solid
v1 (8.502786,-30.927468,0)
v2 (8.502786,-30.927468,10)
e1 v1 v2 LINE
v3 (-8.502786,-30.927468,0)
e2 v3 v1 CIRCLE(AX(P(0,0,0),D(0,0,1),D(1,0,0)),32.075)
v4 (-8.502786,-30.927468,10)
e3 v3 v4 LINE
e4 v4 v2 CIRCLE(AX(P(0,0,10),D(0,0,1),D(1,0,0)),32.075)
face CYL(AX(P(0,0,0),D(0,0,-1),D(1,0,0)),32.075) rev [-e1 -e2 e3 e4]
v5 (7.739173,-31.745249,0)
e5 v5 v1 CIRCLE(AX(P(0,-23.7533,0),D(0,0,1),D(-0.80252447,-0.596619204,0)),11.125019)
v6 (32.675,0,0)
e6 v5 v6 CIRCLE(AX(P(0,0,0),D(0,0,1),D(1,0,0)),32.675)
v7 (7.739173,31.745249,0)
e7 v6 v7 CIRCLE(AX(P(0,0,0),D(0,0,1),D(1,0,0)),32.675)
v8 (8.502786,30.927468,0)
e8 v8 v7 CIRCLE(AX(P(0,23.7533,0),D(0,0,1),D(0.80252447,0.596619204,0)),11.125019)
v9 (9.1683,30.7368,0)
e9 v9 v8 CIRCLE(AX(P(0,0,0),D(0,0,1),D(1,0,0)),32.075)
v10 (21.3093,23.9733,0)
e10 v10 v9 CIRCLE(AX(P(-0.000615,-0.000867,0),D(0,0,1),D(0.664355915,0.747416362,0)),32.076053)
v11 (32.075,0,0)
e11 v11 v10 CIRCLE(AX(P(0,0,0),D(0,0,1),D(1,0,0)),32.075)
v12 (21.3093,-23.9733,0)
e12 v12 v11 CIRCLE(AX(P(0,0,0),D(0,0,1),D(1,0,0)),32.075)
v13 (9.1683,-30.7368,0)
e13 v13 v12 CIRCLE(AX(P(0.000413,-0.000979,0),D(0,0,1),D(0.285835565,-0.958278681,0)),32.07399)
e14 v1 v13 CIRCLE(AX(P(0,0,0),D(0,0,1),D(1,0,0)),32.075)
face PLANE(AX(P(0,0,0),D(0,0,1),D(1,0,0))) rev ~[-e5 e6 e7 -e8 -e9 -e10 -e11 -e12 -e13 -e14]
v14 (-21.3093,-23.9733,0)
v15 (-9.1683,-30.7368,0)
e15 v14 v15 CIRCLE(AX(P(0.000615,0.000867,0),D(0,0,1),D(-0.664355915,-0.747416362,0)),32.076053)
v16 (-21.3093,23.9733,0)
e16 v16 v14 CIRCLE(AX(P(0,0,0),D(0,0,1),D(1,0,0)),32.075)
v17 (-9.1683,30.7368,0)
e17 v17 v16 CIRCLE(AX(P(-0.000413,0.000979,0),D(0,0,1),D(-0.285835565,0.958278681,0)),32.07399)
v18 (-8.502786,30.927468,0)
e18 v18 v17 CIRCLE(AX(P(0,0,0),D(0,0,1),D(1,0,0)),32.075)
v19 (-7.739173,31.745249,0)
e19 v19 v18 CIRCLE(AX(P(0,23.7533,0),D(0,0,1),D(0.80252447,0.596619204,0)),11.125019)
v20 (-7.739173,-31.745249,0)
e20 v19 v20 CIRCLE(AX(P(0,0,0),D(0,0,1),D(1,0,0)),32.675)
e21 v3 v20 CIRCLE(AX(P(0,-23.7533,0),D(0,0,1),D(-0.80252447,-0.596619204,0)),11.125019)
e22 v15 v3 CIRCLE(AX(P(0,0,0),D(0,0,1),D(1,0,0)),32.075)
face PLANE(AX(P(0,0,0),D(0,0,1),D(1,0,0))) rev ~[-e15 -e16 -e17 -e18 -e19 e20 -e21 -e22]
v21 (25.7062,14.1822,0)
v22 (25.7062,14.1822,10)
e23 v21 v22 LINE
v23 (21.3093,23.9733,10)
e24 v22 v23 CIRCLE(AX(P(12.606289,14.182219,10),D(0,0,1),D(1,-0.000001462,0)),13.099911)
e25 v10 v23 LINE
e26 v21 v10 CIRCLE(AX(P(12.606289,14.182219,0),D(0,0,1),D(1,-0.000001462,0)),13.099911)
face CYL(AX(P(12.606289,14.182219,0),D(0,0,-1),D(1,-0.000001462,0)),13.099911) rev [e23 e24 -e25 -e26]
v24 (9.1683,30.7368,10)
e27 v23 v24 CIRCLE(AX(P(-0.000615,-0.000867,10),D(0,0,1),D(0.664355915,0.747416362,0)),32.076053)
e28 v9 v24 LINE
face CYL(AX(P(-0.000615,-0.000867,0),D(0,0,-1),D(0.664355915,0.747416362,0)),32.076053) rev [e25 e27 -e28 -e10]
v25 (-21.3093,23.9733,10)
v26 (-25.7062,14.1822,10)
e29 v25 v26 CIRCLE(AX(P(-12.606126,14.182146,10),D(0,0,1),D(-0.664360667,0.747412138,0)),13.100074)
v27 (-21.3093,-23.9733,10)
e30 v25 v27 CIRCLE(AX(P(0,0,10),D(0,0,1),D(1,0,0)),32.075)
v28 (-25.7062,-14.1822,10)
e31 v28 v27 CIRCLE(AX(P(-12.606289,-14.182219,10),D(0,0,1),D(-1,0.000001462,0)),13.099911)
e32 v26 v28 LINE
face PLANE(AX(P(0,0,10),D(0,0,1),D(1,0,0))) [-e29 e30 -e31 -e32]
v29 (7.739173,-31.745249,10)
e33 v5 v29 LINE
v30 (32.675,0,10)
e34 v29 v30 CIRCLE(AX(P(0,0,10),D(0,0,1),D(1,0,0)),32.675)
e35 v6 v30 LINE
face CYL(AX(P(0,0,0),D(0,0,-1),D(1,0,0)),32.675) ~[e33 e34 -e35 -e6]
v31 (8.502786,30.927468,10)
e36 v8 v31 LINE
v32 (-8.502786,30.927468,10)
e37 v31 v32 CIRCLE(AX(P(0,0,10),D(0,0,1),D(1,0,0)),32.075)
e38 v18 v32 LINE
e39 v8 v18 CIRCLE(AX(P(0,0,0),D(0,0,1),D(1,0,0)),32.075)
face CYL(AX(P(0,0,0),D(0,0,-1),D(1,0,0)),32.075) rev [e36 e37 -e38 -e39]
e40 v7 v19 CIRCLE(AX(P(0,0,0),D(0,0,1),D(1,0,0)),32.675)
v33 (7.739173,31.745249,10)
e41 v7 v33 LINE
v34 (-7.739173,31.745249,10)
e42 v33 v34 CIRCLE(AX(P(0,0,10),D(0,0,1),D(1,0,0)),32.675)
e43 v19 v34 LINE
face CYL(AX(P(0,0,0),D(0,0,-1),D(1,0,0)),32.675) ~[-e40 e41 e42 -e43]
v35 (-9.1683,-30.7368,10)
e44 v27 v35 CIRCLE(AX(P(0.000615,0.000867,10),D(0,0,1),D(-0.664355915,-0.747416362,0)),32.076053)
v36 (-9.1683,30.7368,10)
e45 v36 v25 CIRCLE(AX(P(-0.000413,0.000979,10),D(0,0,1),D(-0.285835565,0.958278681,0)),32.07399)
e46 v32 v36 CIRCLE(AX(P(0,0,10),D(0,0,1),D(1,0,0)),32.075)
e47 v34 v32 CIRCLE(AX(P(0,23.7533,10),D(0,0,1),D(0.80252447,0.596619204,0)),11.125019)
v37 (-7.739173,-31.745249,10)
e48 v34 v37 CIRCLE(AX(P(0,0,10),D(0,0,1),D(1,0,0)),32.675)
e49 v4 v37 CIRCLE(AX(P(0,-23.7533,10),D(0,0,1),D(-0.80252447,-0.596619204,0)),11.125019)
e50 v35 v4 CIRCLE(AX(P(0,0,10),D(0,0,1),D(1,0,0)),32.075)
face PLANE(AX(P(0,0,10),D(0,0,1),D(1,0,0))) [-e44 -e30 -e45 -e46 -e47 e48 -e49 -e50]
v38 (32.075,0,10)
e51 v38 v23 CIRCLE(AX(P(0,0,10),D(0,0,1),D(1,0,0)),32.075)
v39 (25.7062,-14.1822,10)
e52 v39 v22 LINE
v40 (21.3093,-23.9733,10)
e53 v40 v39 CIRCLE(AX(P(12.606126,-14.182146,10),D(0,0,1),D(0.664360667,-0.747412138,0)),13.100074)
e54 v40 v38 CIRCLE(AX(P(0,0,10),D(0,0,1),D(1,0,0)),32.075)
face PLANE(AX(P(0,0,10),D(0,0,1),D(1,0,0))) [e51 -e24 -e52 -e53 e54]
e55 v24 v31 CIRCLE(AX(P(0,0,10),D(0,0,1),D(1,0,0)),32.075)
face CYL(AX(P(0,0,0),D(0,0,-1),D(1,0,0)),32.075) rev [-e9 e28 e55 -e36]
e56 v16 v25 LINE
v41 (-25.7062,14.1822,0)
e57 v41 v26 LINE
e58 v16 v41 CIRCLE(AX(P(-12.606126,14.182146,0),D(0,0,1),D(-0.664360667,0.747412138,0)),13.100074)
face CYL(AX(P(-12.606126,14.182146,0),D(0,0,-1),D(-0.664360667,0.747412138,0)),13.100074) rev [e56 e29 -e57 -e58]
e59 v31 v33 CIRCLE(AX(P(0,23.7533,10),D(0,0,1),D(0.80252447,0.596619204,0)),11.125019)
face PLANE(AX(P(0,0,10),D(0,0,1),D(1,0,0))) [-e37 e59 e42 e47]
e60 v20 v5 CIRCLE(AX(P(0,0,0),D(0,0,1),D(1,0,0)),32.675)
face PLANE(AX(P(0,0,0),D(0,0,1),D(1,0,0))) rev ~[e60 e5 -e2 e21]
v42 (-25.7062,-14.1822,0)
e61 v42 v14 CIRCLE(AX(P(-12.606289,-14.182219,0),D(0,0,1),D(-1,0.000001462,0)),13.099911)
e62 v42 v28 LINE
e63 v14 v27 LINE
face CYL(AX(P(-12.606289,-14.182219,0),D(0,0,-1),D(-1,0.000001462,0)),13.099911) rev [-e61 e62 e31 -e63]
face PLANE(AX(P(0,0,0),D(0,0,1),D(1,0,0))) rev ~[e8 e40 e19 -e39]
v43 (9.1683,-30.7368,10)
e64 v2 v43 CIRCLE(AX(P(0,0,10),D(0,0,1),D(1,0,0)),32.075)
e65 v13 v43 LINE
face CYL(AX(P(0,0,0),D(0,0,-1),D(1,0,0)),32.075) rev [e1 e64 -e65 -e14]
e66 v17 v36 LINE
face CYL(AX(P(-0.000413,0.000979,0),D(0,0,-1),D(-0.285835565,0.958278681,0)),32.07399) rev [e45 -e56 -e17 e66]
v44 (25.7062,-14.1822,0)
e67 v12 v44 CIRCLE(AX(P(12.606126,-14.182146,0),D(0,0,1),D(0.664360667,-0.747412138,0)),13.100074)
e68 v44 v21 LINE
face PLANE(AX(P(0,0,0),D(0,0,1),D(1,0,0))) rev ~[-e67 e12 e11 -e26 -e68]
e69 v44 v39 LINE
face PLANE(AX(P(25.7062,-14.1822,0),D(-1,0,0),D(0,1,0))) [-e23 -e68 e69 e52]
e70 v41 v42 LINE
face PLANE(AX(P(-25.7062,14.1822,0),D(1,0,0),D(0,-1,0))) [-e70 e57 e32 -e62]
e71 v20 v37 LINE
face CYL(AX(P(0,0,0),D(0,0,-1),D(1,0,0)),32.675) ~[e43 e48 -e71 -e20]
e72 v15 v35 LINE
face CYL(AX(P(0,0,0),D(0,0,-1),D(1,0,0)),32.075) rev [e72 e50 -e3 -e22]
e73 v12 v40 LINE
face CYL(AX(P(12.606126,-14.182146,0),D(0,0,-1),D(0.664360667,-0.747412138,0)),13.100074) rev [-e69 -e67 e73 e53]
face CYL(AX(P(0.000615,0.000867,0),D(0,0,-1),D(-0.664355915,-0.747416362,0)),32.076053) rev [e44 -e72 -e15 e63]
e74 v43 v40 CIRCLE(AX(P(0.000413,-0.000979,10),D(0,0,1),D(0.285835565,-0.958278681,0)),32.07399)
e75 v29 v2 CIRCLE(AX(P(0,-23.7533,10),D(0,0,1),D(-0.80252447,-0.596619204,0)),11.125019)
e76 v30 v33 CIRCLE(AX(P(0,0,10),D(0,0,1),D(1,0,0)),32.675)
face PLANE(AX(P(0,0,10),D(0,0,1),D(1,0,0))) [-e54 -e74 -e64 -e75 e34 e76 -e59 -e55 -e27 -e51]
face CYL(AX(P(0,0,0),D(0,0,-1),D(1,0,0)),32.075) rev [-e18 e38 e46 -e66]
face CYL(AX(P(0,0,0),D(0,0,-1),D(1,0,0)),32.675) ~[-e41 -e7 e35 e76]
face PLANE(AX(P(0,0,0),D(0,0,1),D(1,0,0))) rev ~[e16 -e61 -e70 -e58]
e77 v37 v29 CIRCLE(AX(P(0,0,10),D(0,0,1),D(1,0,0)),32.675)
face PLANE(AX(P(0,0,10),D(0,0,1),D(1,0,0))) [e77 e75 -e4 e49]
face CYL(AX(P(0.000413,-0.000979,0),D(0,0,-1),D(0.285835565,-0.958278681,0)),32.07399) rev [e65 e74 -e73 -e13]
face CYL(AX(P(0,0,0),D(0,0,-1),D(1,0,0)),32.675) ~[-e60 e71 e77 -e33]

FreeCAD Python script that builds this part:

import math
import FreeCAD as App
import Part
import Sketcher

V = App.Vector

doc = App.newDocument("Part")
body = doc.addObject("PartDesign::Body", "Body")

# Sketch on XY plane
sketch1 = body.newObject("Sketcher::SketchObject", "Sketch")
sketch1.AttachmentSupport = (doc.getObject("XY_Plane"), [""])
sketch1.MapMode = "FlatFace"
sketch1.addGeometry(Part.Circle(V(0, 0, 0), V(0, 0, 1), 32.675), False)
sketch1.addGeometry(Part.ArcOfCircle(Part.Circle(V(-0.000615, -0.000867, 0), V(0, 0, 1), 32.076053), math.radians(48.367068), math.radians(73.390381)), False)
sketch1.addGeometry(Part.ArcOfCircle(Part.Circle(V(12.6062, 14.1822, 0), V(0, 0, 1), 13.1), math.radians(0), math.radians(48.366788)), False)
sketch1.addGeometry(Part.LineSegment(V(25.7062, 14.1822, 0), V(25.7062, -14.1822, 0)), False)
sketch1.addGeometry(Part.ArcOfCircle(Part.Circle(V(12.6062, -14.1822, 0), V(0, 0, 1), 13.099984), math.radians(-48.366788), math.radians(0)), False)
sketch1.addGeometry(Part.ArcOfCircle(Part.Circle(V(0.000413, -0.000979, 0), V(0, 0, 1), 32.07399), math.radians(-73.391199), math.radians(-48.36625)), False)
sketch1.addGeometry(Part.ArcOfCircle(Part.Circle(V(0, 0, 0), V(0, 0, 1), 32.075), math.radians(-106.609008), math.radians(-73.390992)), False)
sketch1.addGeometry(Part.ArcOfCircle(Part.Circle(V(0.000615, 0.000867, 0), V(0, 0, 1), 32.076053), math.radians(-131.632932), math.radians(-106.609619)), False)
sketch1.addGeometry(Part.ArcOfCircle(Part.Circle(V(-12.6062, -14.1822, 0), V(0, 0, 1), 13.1), math.radians(180), math.radians(228.366788)), False)
sketch1.addGeometry(Part.LineSegment(V(-25.7062, -14.1822, 0), V(-25.7062, 14.1822, 0)), False)
sketch1.addGeometry(Part.ArcOfCircle(Part.Circle(V(-12.6062, 14.1822, 0), V(0, 0, 1), 13.099984), math.radians(131.633212), math.radians(180)), False)
sketch1.addGeometry(Part.ArcOfCircle(Part.Circle(V(-0.000413, 0.000979, 0), V(0, 0, 1), 32.07399), math.radians(106.608801), math.radians(131.63375)), False)
sketch1.addGeometry(Part.ArcOfCircle(Part.Circle(V(0, 0, 0), V(0, 0, 1), 32.075), math.radians(73.390992), math.radians(106.609008)), False)
sketch1.addConstraint(Sketcher.Constraint("Coincident", 1, 1, 2, 2))
sketch1.addConstraint(Sketcher.Constraint("Coincident", 2, 1, 3, 1))
sketch1.addConstraint(Sketcher.Constraint("Coincident", 3, 2, 4, 2))
sketch1.addConstraint(Sketcher.Constraint("Coincident", 4, 1, 5, 2))
sketch1.addConstraint(Sketcher.Constraint("Coincident", 5, 1, 6, 2))
sketch1.addConstraint(Sketcher.Constraint("Coincident", 6, 1, 7, 2))
sketch1.addConstraint(Sketcher.Constraint("Coincident", 7, 1, 8, 2))
sketch1.addConstraint(Sketcher.Constraint("Coincident", 8, 1, 9, 1))
sketch1.addConstraint(Sketcher.Constraint("Coincident", 9, 2, 10, 2))
sketch1.addConstraint(Sketcher.Constraint("Coincident", 10, 1, 11, 2))
sketch1.addConstraint(Sketcher.Constraint("Coincident", 11, 1, 12, 2))
sketch1.addConstraint(Sketcher.Constraint("Coincident", 12, 1, 1, 2))
sketch1.addConstraint(Sketcher.Constraint("Vertical", 3))
sketch1.addConstraint(Sketcher.Constraint("Vertical", 9))
sketch1.addConstraint(Sketcher.Constraint("Coincident", 0, 3, -1, 1))
sketch1.addConstraint(Sketcher.Constraint("Coincident", 6, 3, -1, 1))
sketch1.addConstraint(Sketcher.Constraint("Coincident", 12, 3, -1, 1))
sketch1.addConstraint(Sketcher.Constraint("Radius", 2, 13.1))
sketch1.addConstraint(Sketcher.Constraint("Radius", 4, 13.1))
sketch1.addConstraint(Sketcher.Constraint("Radius", 8, 13.1))
sketch1.addConstraint(Sketcher.Constraint("Radius", 10, 13.1))
sketch1.addConstraint(Sketcher.Constraint("Diameter", 0, 65.35))
sketch1.addConstraint(Sketcher.Constraint("Radius", 1, 32.076))
sketch1.addConstraint(Sketcher.Constraint("Radius", 5, 32.074))
sketch1.addConstraint(Sketcher.Constraint("Radius", 6, 32.075))
sketch1.addConstraint(Sketcher.Constraint("Radius", 7, 32.076))
sketch1.addConstraint(Sketcher.Constraint("Radius", 11, 32.074))
sketch1.addConstraint(Sketcher.Constraint("Radius", 12, 32.075))
sketch1.addConstraint(Sketcher.Constraint("DistanceY", 5, 3, 1, 3, 0.0))
sketch1.addConstraint(Sketcher.Constraint("DistanceY", 7, 3, 11, 3, 0.0))
sketch1.addConstraint(Sketcher.Constraint("DistanceX", 1, 3, 4, 1, 21.31))
sketch1.addConstraint(Sketcher.Constraint("DistanceX", 10, 1, 7, 3, 21.31))
sketch1.addConstraint(Sketcher.Constraint("DistanceY", 3, 2, 3, 1, 28.3644))
sketch1.addConstraint(Sketcher.Constraint("DistanceY", 9, 1, 9, 2, 28.3644))
sketch1.addConstraint(Sketcher.Constraint("DistanceY", 5, 3, -1, 1, 0.001))
sketch1.addConstraint(Sketcher.Constraint("DistanceY", -1, 1, 11, 3, 0.001))
sketch1.addConstraint(Sketcher.Constraint("DistanceY", 1, 3, 2, 3, 14.183))
sketch1.addConstraint(Sketcher.Constraint("DistanceY", 8, 3, 7, 3, 14.183))
sketch1.addConstraint(Sketcher.Constraint("DistanceX", 2, 3, 1, 1, 8.703))
sketch1.addConstraint(Sketcher.Constraint("DistanceY", 2, 1, 1, 1, 9.791))
sketch1.addConstraint(Sketcher.Constraint("DistanceX", 5, 1, 4, 1, 12.141))
sketch1.addConstraint(Sketcher.Constraint("DistanceX", 8, 3, 6, 1, 3.438))
sketch1.addConstraint(Sketcher.Constraint("DistanceX", 7, 1, 8, 3, 8.703))
sketch1.addConstraint(Sketcher.Constraint("DistanceY", 7, 1, 8, 1, 9.791))
sketch1.addConstraint(Sketcher.Constraint("DistanceX", 10, 1, 11, 1, 12.141))
sketch1.addConstraint(Sketcher.Constraint("DistanceX", 12, 1, 1, 1, 12.141))
pad1 = body.newObject("PartDesign::Pad", "Pad")
pad1.Profile = sketch1
pad1.Length = 10

doc.recompute()
